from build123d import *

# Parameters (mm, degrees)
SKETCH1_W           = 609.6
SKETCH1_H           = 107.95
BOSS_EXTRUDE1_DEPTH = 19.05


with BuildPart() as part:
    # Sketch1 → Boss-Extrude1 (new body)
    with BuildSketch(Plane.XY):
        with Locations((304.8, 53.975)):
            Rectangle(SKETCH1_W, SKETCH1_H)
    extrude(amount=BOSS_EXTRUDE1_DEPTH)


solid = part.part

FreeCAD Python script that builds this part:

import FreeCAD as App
import Part
import Sketcher
from FreeCAD import Vector
Q = App.Units.Quantity

doc = App.newDocument("Part")
body = doc.addObject("PartDesign::Body", "Body")

# Sketch on XY plane
sketch1 = doc.addObject("Sketcher::SketchObject", "Sketch")
body.addObject(sketch1)
sketch1.AttachmentSupport = (doc.XY_Plane, [""])
sketch1.MapMode = "FlatFace"
sketch1.addGeometry([
    Part.LineSegment(Vector(0, 107.95, 0), Vector(0, 0, 0)),
    Part.LineSegment(Vector(0, 0, 0), Vector(609.6, 0, 0)),
    Part.LineSegment(Vector(609.6, 0, 0), Vector(609.6, 107.95, 0)),
    Part.LineSegment(Vector(609.6, 107.95, 0), Vector(0, 107.95, 0)),
], False)
sketch1.addConstraint([
    Sketcher.Constraint("Coincident", 0, 2, 1, 1),
    Sketcher.Constraint("Coincident", 1, 2, 2, 1),
    Sketcher.Constraint("Coincident", 2, 2, 3, 1),
    Sketcher.Constraint("Coincident", 3, 2, 0, 1),
    Sketcher.Constraint("Vertical", 0),
    Sketcher.Constraint("Horizontal", 1),
    Sketcher.Constraint("Vertical", 2),
    Sketcher.Constraint("Horizontal", 3),
    Sketcher.Constraint("Coincident", 0, 2, -1, 1),
    Sketcher.Constraint("DistanceX", 1, 1, 1, 2, Q("24 in")),
    Sketcher.Constraint("DistanceY", 0, 2, 0, 1, Q("4.25 in")),
])
pad1 = doc.addObject("PartDesign::Pad", "Pad")
body.addObject(pad1)
pad1.Profile = sketch1
pad1.Length = Q("0.75 in")

doc.recompute()
